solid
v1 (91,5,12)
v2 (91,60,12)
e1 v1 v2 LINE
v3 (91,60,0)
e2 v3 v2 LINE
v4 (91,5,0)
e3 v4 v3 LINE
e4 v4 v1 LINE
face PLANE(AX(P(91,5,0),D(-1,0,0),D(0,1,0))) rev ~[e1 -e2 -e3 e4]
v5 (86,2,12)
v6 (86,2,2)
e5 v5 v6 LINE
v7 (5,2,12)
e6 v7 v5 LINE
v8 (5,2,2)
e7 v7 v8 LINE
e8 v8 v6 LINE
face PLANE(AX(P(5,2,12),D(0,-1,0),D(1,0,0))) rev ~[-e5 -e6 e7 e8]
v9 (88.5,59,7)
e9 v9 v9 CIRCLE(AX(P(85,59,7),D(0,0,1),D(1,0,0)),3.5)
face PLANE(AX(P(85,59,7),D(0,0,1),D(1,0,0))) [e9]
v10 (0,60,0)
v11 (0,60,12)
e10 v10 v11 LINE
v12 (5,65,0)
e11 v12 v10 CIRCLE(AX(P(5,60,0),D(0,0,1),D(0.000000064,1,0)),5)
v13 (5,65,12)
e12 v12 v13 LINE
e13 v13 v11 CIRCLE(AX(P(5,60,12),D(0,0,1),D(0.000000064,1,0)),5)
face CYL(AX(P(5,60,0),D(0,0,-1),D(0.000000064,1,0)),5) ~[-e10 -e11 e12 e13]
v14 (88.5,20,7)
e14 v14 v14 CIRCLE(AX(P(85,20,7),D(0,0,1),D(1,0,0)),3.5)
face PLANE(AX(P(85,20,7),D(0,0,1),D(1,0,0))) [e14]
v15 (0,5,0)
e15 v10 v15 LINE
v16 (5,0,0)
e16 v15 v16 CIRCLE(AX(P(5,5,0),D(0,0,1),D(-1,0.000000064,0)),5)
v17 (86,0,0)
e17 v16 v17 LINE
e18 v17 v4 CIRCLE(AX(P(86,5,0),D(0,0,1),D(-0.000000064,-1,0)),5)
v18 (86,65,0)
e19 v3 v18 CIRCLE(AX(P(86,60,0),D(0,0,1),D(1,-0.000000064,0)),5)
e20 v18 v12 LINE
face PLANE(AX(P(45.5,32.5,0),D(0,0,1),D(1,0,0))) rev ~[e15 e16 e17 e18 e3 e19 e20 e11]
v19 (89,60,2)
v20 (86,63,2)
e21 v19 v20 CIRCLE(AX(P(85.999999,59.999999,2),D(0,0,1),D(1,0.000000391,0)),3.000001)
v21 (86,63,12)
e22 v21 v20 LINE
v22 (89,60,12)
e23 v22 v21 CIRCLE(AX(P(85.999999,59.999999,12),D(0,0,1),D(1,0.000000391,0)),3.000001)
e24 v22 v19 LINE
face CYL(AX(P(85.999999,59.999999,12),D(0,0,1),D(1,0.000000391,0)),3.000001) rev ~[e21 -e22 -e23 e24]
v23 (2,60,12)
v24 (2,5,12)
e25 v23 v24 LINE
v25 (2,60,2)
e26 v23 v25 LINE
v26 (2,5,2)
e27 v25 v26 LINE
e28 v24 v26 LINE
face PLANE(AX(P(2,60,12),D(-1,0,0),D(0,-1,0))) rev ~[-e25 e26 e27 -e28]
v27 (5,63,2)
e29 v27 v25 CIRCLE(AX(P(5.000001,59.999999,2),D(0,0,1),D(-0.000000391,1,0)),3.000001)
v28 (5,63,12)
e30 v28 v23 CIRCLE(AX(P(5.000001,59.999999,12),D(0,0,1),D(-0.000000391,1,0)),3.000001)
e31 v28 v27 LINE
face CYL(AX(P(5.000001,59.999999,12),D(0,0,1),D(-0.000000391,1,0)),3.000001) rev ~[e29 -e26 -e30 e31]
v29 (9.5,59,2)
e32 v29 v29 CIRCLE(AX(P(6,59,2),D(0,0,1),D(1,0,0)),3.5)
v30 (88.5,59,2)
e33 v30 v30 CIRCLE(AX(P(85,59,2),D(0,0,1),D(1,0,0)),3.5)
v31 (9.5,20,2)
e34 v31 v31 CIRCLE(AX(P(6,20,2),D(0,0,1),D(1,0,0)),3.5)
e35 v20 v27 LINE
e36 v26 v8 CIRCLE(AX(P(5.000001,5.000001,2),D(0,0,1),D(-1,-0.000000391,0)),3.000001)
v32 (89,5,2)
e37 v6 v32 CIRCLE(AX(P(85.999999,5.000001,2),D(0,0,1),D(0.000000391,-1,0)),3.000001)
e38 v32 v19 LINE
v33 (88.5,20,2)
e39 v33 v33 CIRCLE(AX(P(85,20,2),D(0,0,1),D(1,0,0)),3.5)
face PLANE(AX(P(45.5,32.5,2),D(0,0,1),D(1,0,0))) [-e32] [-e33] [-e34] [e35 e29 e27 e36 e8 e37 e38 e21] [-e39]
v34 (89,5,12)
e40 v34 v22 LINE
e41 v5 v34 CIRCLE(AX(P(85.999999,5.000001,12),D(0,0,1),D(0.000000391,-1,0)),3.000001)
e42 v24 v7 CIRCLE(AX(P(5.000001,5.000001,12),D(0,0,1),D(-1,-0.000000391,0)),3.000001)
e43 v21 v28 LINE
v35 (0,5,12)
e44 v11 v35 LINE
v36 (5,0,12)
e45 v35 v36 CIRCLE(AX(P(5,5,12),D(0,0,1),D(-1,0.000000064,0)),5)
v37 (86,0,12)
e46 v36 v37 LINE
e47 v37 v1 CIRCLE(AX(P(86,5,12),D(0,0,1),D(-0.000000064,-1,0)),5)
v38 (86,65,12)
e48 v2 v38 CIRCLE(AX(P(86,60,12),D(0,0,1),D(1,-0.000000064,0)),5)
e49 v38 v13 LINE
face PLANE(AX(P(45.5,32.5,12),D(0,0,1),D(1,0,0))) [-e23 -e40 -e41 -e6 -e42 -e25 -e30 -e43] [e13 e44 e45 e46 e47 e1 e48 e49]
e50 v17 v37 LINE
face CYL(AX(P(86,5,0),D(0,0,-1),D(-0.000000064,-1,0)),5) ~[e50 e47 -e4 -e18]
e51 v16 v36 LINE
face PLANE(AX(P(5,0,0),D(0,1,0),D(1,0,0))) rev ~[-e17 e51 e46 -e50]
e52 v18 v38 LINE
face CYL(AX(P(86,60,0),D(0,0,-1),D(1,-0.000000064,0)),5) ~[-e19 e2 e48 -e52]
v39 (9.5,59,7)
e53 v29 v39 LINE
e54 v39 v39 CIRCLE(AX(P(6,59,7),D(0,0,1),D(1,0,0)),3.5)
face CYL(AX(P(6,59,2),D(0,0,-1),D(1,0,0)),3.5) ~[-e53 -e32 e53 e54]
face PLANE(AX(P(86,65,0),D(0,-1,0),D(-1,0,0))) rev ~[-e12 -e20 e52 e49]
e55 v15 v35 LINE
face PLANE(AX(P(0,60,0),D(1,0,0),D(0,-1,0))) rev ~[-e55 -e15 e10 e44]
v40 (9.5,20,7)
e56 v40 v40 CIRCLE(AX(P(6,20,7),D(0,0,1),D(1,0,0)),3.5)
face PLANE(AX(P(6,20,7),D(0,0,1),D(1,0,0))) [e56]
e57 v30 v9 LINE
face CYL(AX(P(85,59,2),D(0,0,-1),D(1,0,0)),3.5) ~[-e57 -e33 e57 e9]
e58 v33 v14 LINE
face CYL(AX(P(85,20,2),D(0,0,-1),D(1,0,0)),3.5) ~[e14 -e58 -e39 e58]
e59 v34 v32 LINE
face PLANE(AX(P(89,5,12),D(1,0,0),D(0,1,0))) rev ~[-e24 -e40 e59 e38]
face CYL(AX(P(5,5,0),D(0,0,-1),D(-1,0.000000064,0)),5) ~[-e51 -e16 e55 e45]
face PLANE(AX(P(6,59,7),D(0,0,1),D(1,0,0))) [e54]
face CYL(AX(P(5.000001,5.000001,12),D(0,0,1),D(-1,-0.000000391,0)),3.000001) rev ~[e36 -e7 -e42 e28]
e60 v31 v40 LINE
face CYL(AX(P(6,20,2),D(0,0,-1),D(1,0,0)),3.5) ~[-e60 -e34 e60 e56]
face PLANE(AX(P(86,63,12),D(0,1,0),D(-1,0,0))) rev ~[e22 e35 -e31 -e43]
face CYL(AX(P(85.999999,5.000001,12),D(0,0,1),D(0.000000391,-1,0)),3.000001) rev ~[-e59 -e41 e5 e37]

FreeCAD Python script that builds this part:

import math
import FreeCAD as App
import Part
import Sketcher
Q = App.Units.Quantity

doc = App.newDocument("Part")
params = doc.addObject("Spreadsheet::Sheet", "Params")
for row, (alias, value) in enumerate([
    ("sketch1_radius", "5 mm"),
    ("sketch1_width", "81 mm"),
    ("sketch1_height", "55 mm"),
    ("pad1_length", "12 mm"),
    ("sketch2_radius", "3.000001 mm"),
    ("sketch2_width", "81 mm"),
    ("sketch2_height", "55 mm"),
    ("pocket1_length", "10 mm"),
    ("sketch3_diameter", "7 mm"),
    ("pad2_length", "5 mm"),
    ("sketch4_diameter", "7 mm"),
    ("pad3_length", "5 mm"),
    ("linearpattern_pitch", "39 mm"),
], start=1):
    params.set(f"A{row}", alias)
    params.set(f"B{row}", "=" + value)
    params.setAlias(f"B{row}", alias)

body = doc.addObject("PartDesign::Body", "Body")

sketch1 = doc.addObject("Sketcher::SketchObject", "Sketch")
body.addObject(sketch1)
sketch1.AttachmentSupport = (doc.XY_Plane, [""])
sketch1.MapMode = "FlatFace"
sketch1.addGeometry(Part.LineSegment(App.Vector(5, 0, 0), App.Vector(86, 0, 0)), False)
sketch1.addGeometry(Part.ArcOfCircle(Part.Circle(App.Vector(86, 5, 0), App.Vector(0, 0, 1), 5), math.radians(-90), math.radians(0)), False)
sketch1.addGeometry(Part.LineSegment(App.Vector(91, 5, 0), App.Vector(91, 60, 0)), False)
sketch1.addGeometry(Part.ArcOfCircle(Part.Circle(App.Vector(86, 60, 0), App.Vector(0, 0, 1), 5), math.radians(0), math.radians(90)), False)
sketch1.addGeometry(Part.LineSegment(App.Vector(86, 65, 0), App.Vector(5, 65, 0)), False)
sketch1.addGeometry(Part.ArcOfCircle(Part.Circle(App.Vector(5, 60, 0), App.Vector(0, 0, 1), 5), math.radians(90), math.radians(180)), False)
sketch1.addGeometry(Part.LineSegment(App.Vector(0, 60, 0), App.Vector(0, 5, 0)), False)
sketch1.addGeometry(Part.ArcOfCircle(Part.Circle(App.Vector(5, 5, 0), App.Vector(0, 0, 1), 5), math.radians(180), math.radians(270)), False)
sketch1.addConstraint(Sketcher.Constraint("Tangent", 0, 2, 1, 1))
sketch1.addConstraint(Sketcher.Constraint("Tangent", 1, 2, 2, 1))
sketch1.addConstraint(Sketcher.Constraint("Tangent", 2, 2, 3, 1))
sketch1.addConstraint(Sketcher.Constraint("Tangent", 3, 2, 4, 1))
sketch1.addConstraint(Sketcher.Constraint("Tangent", 4, 2, 5, 1))
sketch1.addConstraint(Sketcher.Constraint("Tangent", 5, 2, 6, 1))
sketch1.addConstraint(Sketcher.Constraint("Tangent", 6, 2, 7, 1))
sketch1.addConstraint(Sketcher.Constraint("Tangent", 7, 2, 0, 1))
sketch1.addConstraint(Sketcher.Constraint("Horizontal", 0))
sketch1.addConstraint(Sketcher.Constraint("Vertical", 2))
sketch1.addConstraint(Sketcher.Constraint("Horizontal", 4))
sketch1.addConstraint(Sketcher.Constraint("Vertical", 6))
sketch1.addConstraint(Sketcher.Constraint("Equal", 1, 3))
sketch1.addConstraint(Sketcher.Constraint("Equal", 3, 5))
sketch1.addConstraint(Sketcher.Constraint("Equal", 5, 7))
sketch1.addConstraint(Sketcher.Constraint("PointOnObject", 0, 2, -1))
sketch1.addConstraint(Sketcher.Constraint("PointOnObject", 5, 2, -2))
sketch1.addConstraint(Sketcher.Constraint("Radius", 1, Q("5 mm")))
sketch1.addConstraint(Sketcher.Constraint("DistanceX", 0, 1, 0, 2, Q("81 mm")))
sketch1.addConstraint(Sketcher.Constraint("DistanceY", 2, 1, 2, 2, Q("55 mm")))
sketch1.setExpression("Constraints[17]", "Params.sketch1_radius")
sketch1.setExpression("Constraints[18]", "Params.sketch1_width")
sketch1.setExpression("Constraints[19]", "Params.sketch1_height")
pad1 = doc.addObject("PartDesign::Pad", "Pad")
body.addObject(pad1)
pad1.Profile = sketch1
pad1.setExpression("Length", "Params.pad1_length")

sketch2 = doc.addObject("Sketcher::SketchObject", "Sketch001")
body.addObject(sketch2)
sketch2.AttachmentSupport = (doc.XY_Plane, [""])
sketch2.MapMode = "FlatFace"
sketch2.AttachmentOffset = App.Placement(App.Vector(0, 0, 12), App.Rotation())
sketch2.addGeometry(Part.LineSegment(App.Vector(5, 2, 0), App.Vector(86, 2, 0)), False)
sketch2.addGeometry(Part.ArcOfCircle(Part.Circle(App.Vector(86, 5, 0), App.Vector(0, 0, 1), 3), math.radians(-90), math.radians(0)), False)
sketch2.addGeometry(Part.LineSegment(App.Vector(89, 5, 0), App.Vector(89, 60, 0)), False)
sketch2.addGeometry(Part.ArcOfCircle(Part.Circle(App.Vector(86, 60, 0), App.Vector(0, 0, 1), 3), math.radians(0), math.radians(90)), False)
sketch2.addGeometry(Part.LineSegment(App.Vector(86, 63, 0), App.Vector(5, 63, 0)), False)
sketch2.addGeometry(Part.ArcOfCircle(Part.Circle(App.Vector(5, 60, 0), App.Vector(0, 0, 1), 3), math.radians(90), math.radians(180)), False)
sketch2.addGeometry(Part.LineSegment(App.Vector(2, 60, 0), App.Vector(2, 5, 0)), False)
sketch2.addGeometry(Part.ArcOfCircle(Part.Circle(App.Vector(5, 5, 0), App.Vector(0, 0, 1), 3), math.radians(-180), math.radians(-90)), False)
sketch2.addConstraint(Sketcher.Constraint("Tangent", 0, 2, 1, 1))
sketch2.addConstraint(Sketcher.Constraint("Tangent", 1, 2, 2, 1))
sketch2.addConstraint(Sketcher.Constraint("Tangent", 2, 2, 3, 1))
sketch2.addConstraint(Sketcher.Constraint("Tangent", 3, 2, 4, 1))
sketch2.addConstraint(Sketcher.Constraint("Tangent", 4, 2, 5, 1))
sketch2.addConstraint(Sketcher.Constraint("Tangent", 5, 2, 6, 1))
sketch2.addConstraint(Sketcher.Constraint("Tangent", 6, 2, 7, 1))
sketch2.addConstraint(Sketcher.Constraint("Tangent", 7, 2, 0, 1))
sketch2.addConstraint(Sketcher.Constraint("Horizontal", 0))
sketch2.addConstraint(Sketcher.Constraint("Vertical", 2))
sketch2.addConstraint(Sketcher.Constraint("Horizontal", 4))
sketch2.addConstraint(Sketcher.Constraint("Vertical", 6))
sketch2.addConstraint(Sketcher.Constraint("Equal", 1, 3))
sketch2.addConstraint(Sketcher.Constraint("Equal", 3, 5))
sketch2.addConstraint(Sketcher.Constraint("Equal", 5, 7))
sketch2.addConstraint(Sketcher.Constraint("Radius", 1, Q("3.000001 mm")))
sketch2.addConstraint(Sketcher.Constraint("DistanceX", 0, 1, 0, 2, Q("81 mm")))
sketch2.addConstraint(Sketcher.Constraint("DistanceY", 2, 1, 2, 2, Q("55 mm")))
sketch2.addConstraint(Sketcher.Constraint("DistanceX", -1, 1, 1, 3, Q("85.999999 mm")))
sketch2.addConstraint(Sketcher.Constraint("DistanceY", -1, 1, 1, 3, Q("5.000001 mm")))
sketch2.setExpression("Constraints[15]", "Params.sketch2_radius")
sketch2.setExpression("Constraints[16]", "Params.sketch2_width")
sketch2.setExpression("Constraints[17]", "Params.sketch2_height")
pocket1 = doc.addObject("PartDesign::Pocket", "Pocket")
body.addObject(pocket1)
pocket1.Profile = sketch2
pocket1.setExpression("Length", "Params.pocket1_length")

sketch3 = doc.addObject("Sketcher::SketchObject", "Sketch002")
body.addObject(sketch3)
sketch3.AttachmentSupport = (doc.XY_Plane, [""])
sketch3.MapMode = "FlatFace"
sketch3.AttachmentOffset = App.Placement(App.Vector(0, 0, 2), App.Rotation())
sketch3.addGeometry(Part.Circle(App.Vector(6, 20, 0), App.Vector(0, 0, 1), 3.5), False)
sketch3.addConstraint(Sketcher.Constraint("Diameter", 0, Q("7 mm")))
sketch3.addConstraint(Sketcher.Constraint("DistanceX", -1, 1, 0, 3, Q("6 mm")))
sketch3.addConstraint(Sketcher.Constraint("DistanceY", -1, 1, 0, 3, Q("20 mm")))
sketch3.setExpression("Constraints[0]", "Params.sketch3_diameter")
pad2 = doc.addObject("PartDesign::Pad", "Pad001")
body.addObject(pad2)
pad2.Profile = sketch3
pad2.setExpression("Length", "Params.pad2_length")

sketch4 = doc.addObject("Sketcher::SketchObject", "Sketch003")
body.addObject(sketch4)
sketch4.AttachmentSupport = (doc.XY_Plane, [""])
sketch4.MapMode = "FlatFace"
sketch4.AttachmentOffset = App.Placement(App.Vector(0, 0, 2), App.Rotation())
sketch4.addGeometry(Part.Circle(App.Vector(85, 20, 0), App.Vector(0, 0, 1), 3.5), False)
sketch4.addConstraint(Sketcher.Constraint("Diameter", 0, Q("7 mm")))
sketch4.addConstraint(Sketcher.Constraint("DistanceX", -1, 1, 0, 3, Q("85 mm")))
sketch4.addConstraint(Sketcher.Constraint("DistanceY", -1, 1, 0, 3, Q("20 mm")))
sketch4.setExpression("Constraints[0]", "Params.sketch4_diameter")
pad3 = doc.addObject("PartDesign::Pad", "Pad002")
body.addObject(pad3)
pad3.Profile = sketch4
pad3.setExpression("Length", "Params.pad3_length")
doc.recompute()

linearpattern = doc.addObject("PartDesign::LinearPattern", "LinearPattern")
body.addObject(linearpattern)
linearpattern.Originals = [pad2, pad3]
linearpattern.Direction = (doc.Y_Axis, [""])
linearpattern.Mode = "offset"
linearpattern.setExpression("Offset", "Params.linearpattern_pitch")
linearpattern.Occurrences = 2
body.Tip = linearpattern

doc.recompute()
